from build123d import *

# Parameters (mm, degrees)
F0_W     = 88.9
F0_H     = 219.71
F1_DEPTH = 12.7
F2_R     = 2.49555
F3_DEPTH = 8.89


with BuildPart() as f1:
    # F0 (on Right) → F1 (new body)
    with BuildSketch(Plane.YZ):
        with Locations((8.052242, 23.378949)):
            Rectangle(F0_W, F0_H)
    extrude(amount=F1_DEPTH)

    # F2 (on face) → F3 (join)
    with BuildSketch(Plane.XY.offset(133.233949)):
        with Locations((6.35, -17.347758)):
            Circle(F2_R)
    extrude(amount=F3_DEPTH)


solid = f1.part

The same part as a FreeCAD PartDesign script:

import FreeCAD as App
import Part
import Sketcher
Q = App.Units.Quantity

doc = App.newDocument("Part")
body = doc.addObject("PartDesign::Body", "Body")

# Sketch on YZ plane
sketch1 = doc.addObject("Sketcher::SketchObject", "Sketch")
body.addObject(sketch1)
sketch1.AttachmentSupport = (doc.YZ_Plane, [""])
sketch1.MapMode = "FlatFace"
sketch1.addGeometry([
    Part.LineSegment(App.Vector(-36, 133, 0), App.Vector(-36, -86, 0)),
    Part.LineSegment(App.Vector(-36, -86, 0), App.Vector(53, -86, 0)),
    Part.LineSegment(App.Vector(53, -86, 0), App.Vector(53, 133, 0)),
    Part.LineSegment(App.Vector(53, 133, 0), App.Vector(-36, 133, 0)),
], False)
sketch1.addConstraint([
    Sketcher.Constraint("Coincident", 0, 2, 1, 1),
    Sketcher.Constraint("Coincident", 1, 2, 2, 1),
    Sketcher.Constraint("Coincident", 2, 2, 3, 1),
    Sketcher.Constraint("Coincident", 3, 2, 0, 1),
    Sketcher.Constraint("Vertical", 0),
    Sketcher.Constraint("Horizontal", 1),
    Sketcher.Constraint("Vertical", 2),
    Sketcher.Constraint("Horizontal", 3),
    Sketcher.Constraint("DistanceX", 1, 1, 1, 2, Q("3.5 in")),
    Sketcher.Constraint("DistanceY", 0, 2, 0, 1, Q("8.65 in")),
    Sketcher.Constraint("DistanceX", 0, 2, -1, 1, 36.397758),
    Sketcher.Constraint("DistanceY", 0, 2, -1, 1, 86.476051),
])
pad1 = doc.addObject("PartDesign::Pad", "Pad")
body.addObject(pad1)
pad1.Profile = sketch1
pad1.Length = Q("0.5 in")

# Sketch on XY plane
sketch2 = doc.addObject("Sketcher::SketchObject", "Sketch001")
body.addObject(sketch2)
sketch2.AttachmentSupport = (doc.XY_Plane, [""])
sketch2.MapMode = "FlatFace"
sketch2.AttachmentOffset = App.Placement(App.Vector(0, 0, 133.233949), App.Rotation())
sketch2.addGeometry(Part.Circle(App.Vector(6.3, -17.3, 0), App.Vector(0, 0, 1), 2.5), False)
sketch2.addConstraint([
    Sketcher.Constraint("Diameter", 0, Q("0.1965 in")),
    Sketcher.Constraint("DistanceX", -1, 1, 0, 3, Q("0.25 in")),
    Sketcher.Constraint("DistanceY", 0, 3, -1, 1, 17.347758),
])
pad2 = doc.addObject("PartDesign::Pad", "Pad001")
body.addObject(pad2)
pad2.Profile = sketch2
pad2.Length = Q("0.35 in")

doc.recompute()
